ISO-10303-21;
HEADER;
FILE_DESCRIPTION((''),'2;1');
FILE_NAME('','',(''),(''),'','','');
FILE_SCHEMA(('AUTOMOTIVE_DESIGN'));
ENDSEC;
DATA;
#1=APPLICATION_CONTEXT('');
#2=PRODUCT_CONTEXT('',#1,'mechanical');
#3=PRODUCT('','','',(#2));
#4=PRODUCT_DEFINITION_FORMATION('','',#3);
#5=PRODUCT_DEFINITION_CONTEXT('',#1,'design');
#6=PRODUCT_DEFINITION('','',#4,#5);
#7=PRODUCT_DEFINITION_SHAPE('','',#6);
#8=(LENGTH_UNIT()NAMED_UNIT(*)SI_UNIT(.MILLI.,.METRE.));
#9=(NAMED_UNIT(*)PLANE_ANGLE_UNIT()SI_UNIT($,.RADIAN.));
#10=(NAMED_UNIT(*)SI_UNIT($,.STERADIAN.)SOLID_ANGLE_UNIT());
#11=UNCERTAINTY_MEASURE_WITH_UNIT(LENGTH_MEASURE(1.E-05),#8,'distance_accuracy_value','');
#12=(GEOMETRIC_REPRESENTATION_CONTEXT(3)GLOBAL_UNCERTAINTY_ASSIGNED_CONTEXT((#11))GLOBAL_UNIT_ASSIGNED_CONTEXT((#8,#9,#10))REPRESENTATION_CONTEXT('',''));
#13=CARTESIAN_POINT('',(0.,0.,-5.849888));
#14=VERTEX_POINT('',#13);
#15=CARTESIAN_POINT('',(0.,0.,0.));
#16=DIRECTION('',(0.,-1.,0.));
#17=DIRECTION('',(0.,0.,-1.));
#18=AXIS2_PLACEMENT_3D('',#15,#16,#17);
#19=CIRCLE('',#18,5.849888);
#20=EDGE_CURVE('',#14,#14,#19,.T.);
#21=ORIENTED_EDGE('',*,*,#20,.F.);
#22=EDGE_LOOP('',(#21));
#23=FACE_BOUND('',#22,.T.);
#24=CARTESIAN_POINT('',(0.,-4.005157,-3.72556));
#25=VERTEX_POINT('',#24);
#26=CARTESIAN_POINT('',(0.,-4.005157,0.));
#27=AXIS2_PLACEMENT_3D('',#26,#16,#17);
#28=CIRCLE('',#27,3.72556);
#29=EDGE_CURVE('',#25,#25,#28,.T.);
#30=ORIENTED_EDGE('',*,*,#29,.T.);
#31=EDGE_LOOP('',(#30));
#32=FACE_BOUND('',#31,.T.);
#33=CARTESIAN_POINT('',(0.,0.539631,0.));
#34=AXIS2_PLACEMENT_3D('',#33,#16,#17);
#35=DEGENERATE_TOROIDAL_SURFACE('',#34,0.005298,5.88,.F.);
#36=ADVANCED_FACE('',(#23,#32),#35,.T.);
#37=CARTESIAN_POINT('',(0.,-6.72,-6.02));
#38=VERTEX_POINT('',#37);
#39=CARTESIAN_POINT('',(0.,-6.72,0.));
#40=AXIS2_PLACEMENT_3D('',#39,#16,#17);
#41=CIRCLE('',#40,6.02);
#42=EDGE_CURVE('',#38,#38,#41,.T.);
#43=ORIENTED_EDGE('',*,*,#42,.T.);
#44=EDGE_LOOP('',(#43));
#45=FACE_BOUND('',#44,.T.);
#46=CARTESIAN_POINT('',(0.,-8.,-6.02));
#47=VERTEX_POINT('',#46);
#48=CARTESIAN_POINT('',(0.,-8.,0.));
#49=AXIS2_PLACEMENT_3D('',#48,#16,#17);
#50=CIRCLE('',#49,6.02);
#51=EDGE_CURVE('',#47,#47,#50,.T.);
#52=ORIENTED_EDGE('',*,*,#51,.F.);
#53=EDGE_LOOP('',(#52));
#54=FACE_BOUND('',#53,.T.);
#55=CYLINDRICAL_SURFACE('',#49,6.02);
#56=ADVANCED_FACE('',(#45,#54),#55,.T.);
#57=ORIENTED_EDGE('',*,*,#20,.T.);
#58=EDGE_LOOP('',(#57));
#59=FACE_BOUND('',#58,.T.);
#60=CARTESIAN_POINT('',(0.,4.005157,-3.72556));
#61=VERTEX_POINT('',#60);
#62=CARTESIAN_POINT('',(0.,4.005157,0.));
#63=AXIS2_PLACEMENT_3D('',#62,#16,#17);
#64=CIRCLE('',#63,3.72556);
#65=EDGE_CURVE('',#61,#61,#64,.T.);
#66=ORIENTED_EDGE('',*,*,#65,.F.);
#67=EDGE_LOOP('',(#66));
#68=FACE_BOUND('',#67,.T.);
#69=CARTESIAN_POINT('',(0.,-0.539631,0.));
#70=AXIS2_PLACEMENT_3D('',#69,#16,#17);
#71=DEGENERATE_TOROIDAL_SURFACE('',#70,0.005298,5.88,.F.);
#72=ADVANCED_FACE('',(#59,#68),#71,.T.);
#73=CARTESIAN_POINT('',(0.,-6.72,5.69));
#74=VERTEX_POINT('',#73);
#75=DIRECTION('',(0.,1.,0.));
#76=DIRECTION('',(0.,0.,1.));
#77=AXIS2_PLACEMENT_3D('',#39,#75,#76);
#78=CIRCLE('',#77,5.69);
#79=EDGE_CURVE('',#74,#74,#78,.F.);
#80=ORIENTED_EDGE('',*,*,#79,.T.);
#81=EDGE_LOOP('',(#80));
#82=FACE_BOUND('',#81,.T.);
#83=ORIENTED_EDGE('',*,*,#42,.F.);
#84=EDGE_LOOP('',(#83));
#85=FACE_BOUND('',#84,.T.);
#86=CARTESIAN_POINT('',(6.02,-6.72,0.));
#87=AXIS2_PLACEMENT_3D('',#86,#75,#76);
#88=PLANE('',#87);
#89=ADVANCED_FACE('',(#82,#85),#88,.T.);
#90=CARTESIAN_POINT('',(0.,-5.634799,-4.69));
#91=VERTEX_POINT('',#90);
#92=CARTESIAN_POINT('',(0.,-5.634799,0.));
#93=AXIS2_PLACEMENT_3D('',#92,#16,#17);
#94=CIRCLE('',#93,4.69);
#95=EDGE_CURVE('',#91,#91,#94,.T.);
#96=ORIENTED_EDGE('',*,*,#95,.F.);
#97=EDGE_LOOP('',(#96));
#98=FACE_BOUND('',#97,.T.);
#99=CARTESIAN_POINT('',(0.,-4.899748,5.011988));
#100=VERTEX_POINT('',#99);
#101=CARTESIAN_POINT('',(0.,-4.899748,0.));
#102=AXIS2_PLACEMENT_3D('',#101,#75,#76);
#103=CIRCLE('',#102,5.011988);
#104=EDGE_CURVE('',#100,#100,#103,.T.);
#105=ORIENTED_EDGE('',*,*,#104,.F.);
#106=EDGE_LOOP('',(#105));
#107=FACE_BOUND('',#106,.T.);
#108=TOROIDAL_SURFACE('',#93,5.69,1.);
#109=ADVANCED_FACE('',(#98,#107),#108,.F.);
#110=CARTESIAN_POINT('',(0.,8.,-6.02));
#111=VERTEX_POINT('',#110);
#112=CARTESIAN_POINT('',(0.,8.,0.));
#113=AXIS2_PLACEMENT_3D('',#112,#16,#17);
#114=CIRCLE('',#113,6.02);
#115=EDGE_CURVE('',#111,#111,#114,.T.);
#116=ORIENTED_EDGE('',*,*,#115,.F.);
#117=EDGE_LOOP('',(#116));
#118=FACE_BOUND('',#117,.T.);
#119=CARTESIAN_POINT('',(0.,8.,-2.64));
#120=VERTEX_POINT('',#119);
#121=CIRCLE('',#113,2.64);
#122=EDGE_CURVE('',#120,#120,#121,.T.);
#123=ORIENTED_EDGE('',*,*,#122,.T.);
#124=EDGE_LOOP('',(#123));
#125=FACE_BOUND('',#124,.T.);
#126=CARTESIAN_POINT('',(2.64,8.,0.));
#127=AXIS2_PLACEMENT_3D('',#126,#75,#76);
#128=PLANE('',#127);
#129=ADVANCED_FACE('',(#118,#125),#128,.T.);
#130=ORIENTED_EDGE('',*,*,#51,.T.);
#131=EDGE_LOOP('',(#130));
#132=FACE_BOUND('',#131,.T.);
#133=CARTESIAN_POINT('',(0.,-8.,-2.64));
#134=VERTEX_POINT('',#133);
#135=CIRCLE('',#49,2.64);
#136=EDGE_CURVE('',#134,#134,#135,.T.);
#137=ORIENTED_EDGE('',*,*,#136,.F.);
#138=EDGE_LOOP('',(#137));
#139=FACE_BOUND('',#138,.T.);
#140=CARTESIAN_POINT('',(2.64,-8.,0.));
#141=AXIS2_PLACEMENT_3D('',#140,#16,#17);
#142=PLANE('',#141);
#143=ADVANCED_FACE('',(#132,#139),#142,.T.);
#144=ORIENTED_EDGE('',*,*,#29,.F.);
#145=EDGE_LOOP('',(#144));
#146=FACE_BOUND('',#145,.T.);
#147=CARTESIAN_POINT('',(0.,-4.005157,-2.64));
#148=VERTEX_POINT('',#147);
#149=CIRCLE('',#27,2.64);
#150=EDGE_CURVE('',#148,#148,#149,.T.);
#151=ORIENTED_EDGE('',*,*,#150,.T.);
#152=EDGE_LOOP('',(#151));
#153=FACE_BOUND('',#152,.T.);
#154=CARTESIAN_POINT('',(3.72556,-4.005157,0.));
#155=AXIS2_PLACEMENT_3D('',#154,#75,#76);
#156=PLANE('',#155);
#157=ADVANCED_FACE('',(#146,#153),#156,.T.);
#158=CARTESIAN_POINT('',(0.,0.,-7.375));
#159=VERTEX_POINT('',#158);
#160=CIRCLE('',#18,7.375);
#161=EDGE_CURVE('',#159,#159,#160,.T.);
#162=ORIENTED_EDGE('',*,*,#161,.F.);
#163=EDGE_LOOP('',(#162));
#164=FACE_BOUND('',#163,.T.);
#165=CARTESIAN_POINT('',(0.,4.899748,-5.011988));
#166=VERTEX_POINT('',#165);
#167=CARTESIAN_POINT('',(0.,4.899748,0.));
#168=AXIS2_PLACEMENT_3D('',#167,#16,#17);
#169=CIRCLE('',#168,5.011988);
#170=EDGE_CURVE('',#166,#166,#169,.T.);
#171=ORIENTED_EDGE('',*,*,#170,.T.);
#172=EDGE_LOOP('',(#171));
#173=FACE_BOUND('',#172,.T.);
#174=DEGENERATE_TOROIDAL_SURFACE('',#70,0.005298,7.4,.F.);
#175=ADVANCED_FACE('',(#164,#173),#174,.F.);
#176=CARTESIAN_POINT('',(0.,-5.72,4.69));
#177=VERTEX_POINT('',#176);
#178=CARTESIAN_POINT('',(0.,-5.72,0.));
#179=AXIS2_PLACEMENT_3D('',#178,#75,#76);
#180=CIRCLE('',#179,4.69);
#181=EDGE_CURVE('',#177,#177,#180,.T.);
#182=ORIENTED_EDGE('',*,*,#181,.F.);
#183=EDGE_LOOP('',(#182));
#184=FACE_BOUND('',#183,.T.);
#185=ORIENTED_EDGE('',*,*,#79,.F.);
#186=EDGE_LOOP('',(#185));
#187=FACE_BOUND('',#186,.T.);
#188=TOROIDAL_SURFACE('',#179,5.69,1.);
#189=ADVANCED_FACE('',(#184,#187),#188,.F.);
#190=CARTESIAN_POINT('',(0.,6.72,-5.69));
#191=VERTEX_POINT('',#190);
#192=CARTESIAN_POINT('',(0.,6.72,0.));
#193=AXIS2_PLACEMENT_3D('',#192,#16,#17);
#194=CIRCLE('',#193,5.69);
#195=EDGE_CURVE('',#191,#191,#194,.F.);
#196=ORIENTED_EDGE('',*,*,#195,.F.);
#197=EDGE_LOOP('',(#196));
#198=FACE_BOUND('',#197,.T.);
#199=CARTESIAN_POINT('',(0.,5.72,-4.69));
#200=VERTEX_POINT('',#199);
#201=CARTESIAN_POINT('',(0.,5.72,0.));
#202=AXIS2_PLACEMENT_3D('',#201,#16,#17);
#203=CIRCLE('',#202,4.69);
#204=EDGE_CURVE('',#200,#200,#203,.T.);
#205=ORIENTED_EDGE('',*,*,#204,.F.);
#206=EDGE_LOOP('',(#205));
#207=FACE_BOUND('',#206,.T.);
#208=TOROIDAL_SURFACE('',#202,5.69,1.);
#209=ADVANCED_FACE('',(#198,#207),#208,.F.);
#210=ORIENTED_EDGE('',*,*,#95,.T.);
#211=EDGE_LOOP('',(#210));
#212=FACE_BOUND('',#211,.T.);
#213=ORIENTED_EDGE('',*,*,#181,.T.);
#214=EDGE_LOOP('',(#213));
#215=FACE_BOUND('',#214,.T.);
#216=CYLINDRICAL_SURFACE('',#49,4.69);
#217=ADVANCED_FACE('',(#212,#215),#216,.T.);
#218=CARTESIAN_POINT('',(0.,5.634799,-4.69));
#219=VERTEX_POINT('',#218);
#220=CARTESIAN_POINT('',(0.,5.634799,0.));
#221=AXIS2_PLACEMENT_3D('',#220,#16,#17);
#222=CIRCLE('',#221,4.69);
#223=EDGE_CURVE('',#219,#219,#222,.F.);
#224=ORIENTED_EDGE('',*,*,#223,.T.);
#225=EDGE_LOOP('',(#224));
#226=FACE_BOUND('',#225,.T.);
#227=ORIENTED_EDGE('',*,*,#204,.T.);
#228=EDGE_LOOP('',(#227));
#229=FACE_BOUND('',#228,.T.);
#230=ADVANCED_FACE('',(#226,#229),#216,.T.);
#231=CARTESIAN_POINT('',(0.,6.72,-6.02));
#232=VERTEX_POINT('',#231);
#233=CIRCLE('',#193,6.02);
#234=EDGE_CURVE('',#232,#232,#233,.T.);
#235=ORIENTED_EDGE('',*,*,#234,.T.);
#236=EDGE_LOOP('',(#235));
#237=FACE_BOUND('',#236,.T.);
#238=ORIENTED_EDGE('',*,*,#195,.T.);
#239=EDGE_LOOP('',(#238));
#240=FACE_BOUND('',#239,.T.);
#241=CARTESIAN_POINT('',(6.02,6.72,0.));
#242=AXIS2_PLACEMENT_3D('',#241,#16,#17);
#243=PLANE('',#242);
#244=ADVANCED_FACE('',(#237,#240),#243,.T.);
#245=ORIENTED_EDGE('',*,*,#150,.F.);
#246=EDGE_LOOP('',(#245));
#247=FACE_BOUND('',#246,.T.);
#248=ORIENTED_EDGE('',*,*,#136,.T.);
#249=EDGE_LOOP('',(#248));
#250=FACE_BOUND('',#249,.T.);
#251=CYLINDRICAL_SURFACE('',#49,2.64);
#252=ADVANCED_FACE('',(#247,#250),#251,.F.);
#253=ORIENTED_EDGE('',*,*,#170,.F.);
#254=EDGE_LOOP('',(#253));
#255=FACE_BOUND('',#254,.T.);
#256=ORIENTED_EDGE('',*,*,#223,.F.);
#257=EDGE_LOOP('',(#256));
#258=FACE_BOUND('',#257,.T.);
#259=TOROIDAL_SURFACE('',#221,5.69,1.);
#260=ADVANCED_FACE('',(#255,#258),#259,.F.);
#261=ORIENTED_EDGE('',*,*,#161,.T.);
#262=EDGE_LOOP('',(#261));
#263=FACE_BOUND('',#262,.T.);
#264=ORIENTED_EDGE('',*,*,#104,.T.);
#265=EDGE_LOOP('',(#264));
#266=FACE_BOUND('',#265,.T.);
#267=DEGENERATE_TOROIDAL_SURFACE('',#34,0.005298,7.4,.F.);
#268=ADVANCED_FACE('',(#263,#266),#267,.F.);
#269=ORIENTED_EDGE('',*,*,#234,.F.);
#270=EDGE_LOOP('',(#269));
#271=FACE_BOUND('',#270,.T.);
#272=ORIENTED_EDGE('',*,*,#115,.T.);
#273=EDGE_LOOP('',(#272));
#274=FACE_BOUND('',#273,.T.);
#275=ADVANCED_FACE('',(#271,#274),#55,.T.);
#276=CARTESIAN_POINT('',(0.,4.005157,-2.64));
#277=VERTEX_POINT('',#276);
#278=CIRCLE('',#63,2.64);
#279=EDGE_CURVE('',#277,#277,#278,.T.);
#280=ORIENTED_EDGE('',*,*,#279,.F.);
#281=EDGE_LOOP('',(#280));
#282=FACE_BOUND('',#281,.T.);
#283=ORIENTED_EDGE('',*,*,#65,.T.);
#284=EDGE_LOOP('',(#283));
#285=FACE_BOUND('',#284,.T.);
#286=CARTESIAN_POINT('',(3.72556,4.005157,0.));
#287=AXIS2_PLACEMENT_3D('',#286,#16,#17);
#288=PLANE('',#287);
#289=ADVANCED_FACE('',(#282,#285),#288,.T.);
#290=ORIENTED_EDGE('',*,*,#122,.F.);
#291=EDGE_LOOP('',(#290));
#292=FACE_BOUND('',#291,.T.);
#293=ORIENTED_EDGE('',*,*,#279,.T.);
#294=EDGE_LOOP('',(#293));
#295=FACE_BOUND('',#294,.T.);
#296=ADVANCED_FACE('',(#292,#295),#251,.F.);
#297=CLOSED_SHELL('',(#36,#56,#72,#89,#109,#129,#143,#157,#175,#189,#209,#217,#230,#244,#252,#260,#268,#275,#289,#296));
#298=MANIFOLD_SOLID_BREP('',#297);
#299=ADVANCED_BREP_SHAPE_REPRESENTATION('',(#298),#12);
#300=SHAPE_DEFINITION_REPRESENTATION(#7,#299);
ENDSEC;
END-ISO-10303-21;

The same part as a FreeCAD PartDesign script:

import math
import FreeCAD as App
import Part
import Sketcher
from FreeCAD import Vector


def edges_at(feature, points):
    """Names of the edges that pass closest to the given points."""
    edges = feature.Shape.Edges
    near = lambda p: min(range(len(edges)), key=lambda i: edges[i].distToShape(Part.Vertex(*p))[0])
    return sorted({f"Edge{near(p) + 1}" for p in points})

doc = App.newDocument("Part")
body = doc.addObject("PartDesign::Body", "Body")

sketch1 = body.newObject("Sketcher::SketchObject", "Sketch")
sketch1.AttachmentSupport = (doc.getObject("XY_Plane"), [""])
sketch1.MapMode = "FlatFace"
sketch1.addGeometry([
    Part.LineSegment(Vector(6, 8, 0), Vector(2.6, 8, 0)),
    Part.LineSegment(Vector(2.6, 8, 0), Vector(2.6, 4, 0)),
    Part.LineSegment(Vector(2.6, 4, 0), Vector(3.7, 4, 0)),
    Part.ArcOfCircle(Part.Circle(Vector(0, -0.5, 0), Vector(0, 0, 1), 5.9), math.radians(5), math.radians(51)),
    Part.ArcOfCircle(Part.Circle(Vector(0, 0.5, 0), Vector(0, 0, 1), 5.9), math.radians(-51), math.radians(-5)),
    Part.LineSegment(Vector(3.7, -4, 0), Vector(2.6, -4, 0)),
    Part.LineSegment(Vector(2.6, -4, 0), Vector(2.6, -8, 0)),
    Part.LineSegment(Vector(2.6, -8, 0), Vector(6, -8, 0)),
    Part.LineSegment(Vector(6, -8, 0), Vector(6, -6.7, 0)),
    Part.LineSegment(Vector(6, -6.7, 0), Vector(4.7, -6.7, 0)),
    Part.LineSegment(Vector(4.7, -6.7, 0), Vector(4.7, -5.2, 0)),
    Part.ArcOfCircle(Part.Circle(Vector(0, 0.5, 0), Vector(0, 0, 1), 7.4), math.radians(-51), math.radians(-4)),
    Part.ArcOfCircle(Part.Circle(Vector(0, -0.5, 0), Vector(0, 0, 1), 7.4), math.radians(4), math.radians(51)),
    Part.LineSegment(Vector(4.7, 5.2, 0), Vector(4.7, 6.7, 0)),
    Part.LineSegment(Vector(4.7, 6.7, 0), Vector(6, 6.7, 0)),
    Part.LineSegment(Vector(6, 6.7, 0), Vector(6, 8, 0)),
], False)
sketch1.addConstraint([
    Sketcher.Constraint("Coincident", 0, 2, 1, 1),
    Sketcher.Constraint("Coincident", 1, 2, 2, 1),
    Sketcher.Constraint("Coincident", 2, 2, 3, 2),
    Sketcher.Constraint("Coincident", 3, 1, 4, 2),
    Sketcher.Constraint("Coincident", 4, 1, 5, 1),
    Sketcher.Constraint("Coincident", 5, 2, 6, 1),
    Sketcher.Constraint("Coincident", 6, 2, 7, 1),
    Sketcher.Constraint("Coincident", 7, 2, 8, 1),
    Sketcher.Constraint("Coincident", 8, 2, 9, 1),
    Sketcher.Constraint("Coincident", 9, 2, 10, 1),
    Sketcher.Constraint("Coincident", 10, 2, 11, 1),
    Sketcher.Constraint("Coincident", 11, 2, 12, 1),
    Sketcher.Constraint("Coincident", 12, 2, 13, 1),
    Sketcher.Constraint("Coincident", 13, 2, 14, 1),
    Sketcher.Constraint("Coincident", 14, 2, 15, 1),
    Sketcher.Constraint("Coincident", 15, 2, 0, 1),
    Sketcher.Constraint("Horizontal", 0),
    Sketcher.Constraint("Vertical", 1),
    Sketcher.Constraint("Horizontal", 2),
    Sketcher.Constraint("Horizontal", 5),
    Sketcher.Constraint("Vertical", 6),
    Sketcher.Constraint("Horizontal", 7),
    Sketcher.Constraint("Vertical", 8),
    Sketcher.Constraint("Horizontal", 9),
    Sketcher.Constraint("Vertical", 10),
    Sketcher.Constraint("Vertical", 13),
    Sketcher.Constraint("Horizontal", 14),
    Sketcher.Constraint("Vertical", 15),
    Sketcher.Constraint("Coincident", 11, 3, 4, 3),
    Sketcher.Constraint("Coincident", 12, 3, 3, 3),
    Sketcher.Constraint("Equal", 3, 4),
    Sketcher.Constraint("Equal", 11, 12),
    Sketcher.Constraint("Symmetric", 3, 3, 4, 3, -1),
    Sketcher.Constraint("Symmetric", 1, 2, 5, 2, -1),
    Sketcher.Constraint("Symmetric", 9, 2, 13, 2, -1),
    Sketcher.Constraint("Symmetric", 7, 2, 15, 2, -1),
    Sketcher.Constraint("Radius", 11, 7.4),
    Sketcher.Constraint("Radius", 3, 5.88),
    Sketcher.Constraint("DistanceY", -1, 1, 0, 2, 8.0),
    Sketcher.Constraint("DistanceX", 0, 2, 0, 1, 3.38),
    Sketcher.Constraint("DistanceX", 9, 2, 9, 1, 1.33),
    Sketcher.Constraint("DistanceY", 8, 1, 8, 2, 1.28),
    Sketcher.Constraint("DistanceY", 10, 1, 10, 2, 1.54),
    Sketcher.Constraint("DistanceX", -1, 1, 0, 2, 2.64),
    Sketcher.Constraint("DistanceX", -1, 1, 11, 2, 7.375),
    Sketcher.Constraint("DistanceX", 2, 1, 2, 2, 1.08556),
])
revolution = body.newObject("PartDesign::Revolution", "Revolution")
revolution.Profile = sketch1
revolution.ReferenceAxis = (sketch1, ["V_Axis"])
revolution.Angle = 360
doc.recompute()

fillet = body.newObject("PartDesign::Fillet", "Fillet")
fillet.Base = (revolution, edges_at(revolution, [
    (-4.69, -6.72, 0),
    (-4.69, -5.18, 0),
    (-4.69, 5.18, 0),
    (-4.69, 6.72, 0),
]))
fillet.Radius = 1

doc.recompute()
